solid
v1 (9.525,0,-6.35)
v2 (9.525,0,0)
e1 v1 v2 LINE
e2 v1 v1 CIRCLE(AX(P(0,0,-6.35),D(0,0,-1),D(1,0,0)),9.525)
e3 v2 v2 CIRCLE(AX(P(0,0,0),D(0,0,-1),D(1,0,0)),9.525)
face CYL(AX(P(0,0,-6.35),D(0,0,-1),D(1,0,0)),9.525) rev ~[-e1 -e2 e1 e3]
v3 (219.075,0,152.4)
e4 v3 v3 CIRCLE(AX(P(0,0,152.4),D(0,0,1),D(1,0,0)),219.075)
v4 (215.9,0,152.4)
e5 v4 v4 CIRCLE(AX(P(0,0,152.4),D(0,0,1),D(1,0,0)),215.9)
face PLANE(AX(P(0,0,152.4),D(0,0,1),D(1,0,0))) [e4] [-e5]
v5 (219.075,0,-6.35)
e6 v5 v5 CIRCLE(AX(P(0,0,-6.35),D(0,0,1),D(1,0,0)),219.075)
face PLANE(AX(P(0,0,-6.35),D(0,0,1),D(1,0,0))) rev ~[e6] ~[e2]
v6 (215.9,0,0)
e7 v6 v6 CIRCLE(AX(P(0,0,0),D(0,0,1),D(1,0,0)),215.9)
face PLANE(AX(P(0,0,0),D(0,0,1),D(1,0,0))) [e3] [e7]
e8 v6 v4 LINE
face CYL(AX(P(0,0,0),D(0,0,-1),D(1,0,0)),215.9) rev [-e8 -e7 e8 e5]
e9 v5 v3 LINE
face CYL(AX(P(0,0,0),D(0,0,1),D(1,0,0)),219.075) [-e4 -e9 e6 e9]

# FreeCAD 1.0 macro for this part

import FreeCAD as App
import Part
import Sketcher
from FreeCAD import Vector
Q = App.Units.Quantity

doc = App.newDocument("Part")
body = doc.addObject("PartDesign::Body", "Body")

# Sketch on XY plane
sketch1 = body.newObject("Sketcher::SketchObject", "Sketch")
sketch1.AttachmentSupport = (doc.getObject("XY_Plane"), [""])
sketch1.MapMode = "FlatFace"
sketch1.addGeometry(Part.Circle(Vector(0, 0, 0), Vector(0, 0, 1), 219), False)
sketch1.addGeometry(Part.Circle(Vector(0, 0, 0), Vector(0, 0, 1), 216), False)
sketch1.addConstraint(Sketcher.Constraint("Coincident", 0, 3, -1, 1))
sketch1.addConstraint(Sketcher.Constraint("Coincident", 1, 3, -1, 1))
sketch1.addConstraint(Sketcher.Constraint("Diameter", 1, Q("17 in")))
sketch1.addConstraint(Sketcher.Constraint("Diameter", 0, Q("17.25 in")))
pad1 = body.newObject("PartDesign::Pad", "Pad")
pad1.Profile = sketch1
pad1.Length = Q("6 in")

# Sketch on XY plane
sketch2 = body.newObject("Sketcher::SketchObject", "Sketch001")
sketch2.AttachmentSupport = (doc.getObject("XY_Plane"), [""])
sketch2.MapMode = "FlatFace"
sketch2.addGeometry(Part.Circle(Vector(0, 0, 0), Vector(0, 0, 1), 219), False)
sketch2.addConstraint(Sketcher.Constraint("Coincident", 0, 3, -1, 1))
sketch2.addConstraint(Sketcher.Constraint("Diameter", 0, Q("17.25 in")))
pad2 = body.newObject("PartDesign::Pad", "Pad001")
pad2.Profile = sketch2
pad2.Length = Q("0.25 in")
pad2.Reversed = True

# Sketch on XY plane
sketch3 = body.newObject("Sketcher::SketchObject", "Sketch002")
sketch3.AttachmentSupport = (doc.getObject("XY_Plane"), [""])
sketch3.MapMode = "FlatFace"
sketch3.AttachmentOffset = App.Placement(Vector(0, 0, -0.25 * 25.4), App.Rotation())
sketch3.addGeometry(Part.Circle(Vector(0, 0, 0), Vector(0, 0, 1), 10), False)
sketch3.addConstraint(Sketcher.Constraint("Coincident", 0, 3, -1, 1))
sketch3.addConstraint(Sketcher.Constraint("Diameter", 0, Q("0.75 in")))
pocket1 = body.newObject("PartDesign::Pocket", "Pocket")
pocket1.Profile = sketch3
pocket1.Length = Q("1 in")
pocket1.Reversed = True

doc.recompute()
